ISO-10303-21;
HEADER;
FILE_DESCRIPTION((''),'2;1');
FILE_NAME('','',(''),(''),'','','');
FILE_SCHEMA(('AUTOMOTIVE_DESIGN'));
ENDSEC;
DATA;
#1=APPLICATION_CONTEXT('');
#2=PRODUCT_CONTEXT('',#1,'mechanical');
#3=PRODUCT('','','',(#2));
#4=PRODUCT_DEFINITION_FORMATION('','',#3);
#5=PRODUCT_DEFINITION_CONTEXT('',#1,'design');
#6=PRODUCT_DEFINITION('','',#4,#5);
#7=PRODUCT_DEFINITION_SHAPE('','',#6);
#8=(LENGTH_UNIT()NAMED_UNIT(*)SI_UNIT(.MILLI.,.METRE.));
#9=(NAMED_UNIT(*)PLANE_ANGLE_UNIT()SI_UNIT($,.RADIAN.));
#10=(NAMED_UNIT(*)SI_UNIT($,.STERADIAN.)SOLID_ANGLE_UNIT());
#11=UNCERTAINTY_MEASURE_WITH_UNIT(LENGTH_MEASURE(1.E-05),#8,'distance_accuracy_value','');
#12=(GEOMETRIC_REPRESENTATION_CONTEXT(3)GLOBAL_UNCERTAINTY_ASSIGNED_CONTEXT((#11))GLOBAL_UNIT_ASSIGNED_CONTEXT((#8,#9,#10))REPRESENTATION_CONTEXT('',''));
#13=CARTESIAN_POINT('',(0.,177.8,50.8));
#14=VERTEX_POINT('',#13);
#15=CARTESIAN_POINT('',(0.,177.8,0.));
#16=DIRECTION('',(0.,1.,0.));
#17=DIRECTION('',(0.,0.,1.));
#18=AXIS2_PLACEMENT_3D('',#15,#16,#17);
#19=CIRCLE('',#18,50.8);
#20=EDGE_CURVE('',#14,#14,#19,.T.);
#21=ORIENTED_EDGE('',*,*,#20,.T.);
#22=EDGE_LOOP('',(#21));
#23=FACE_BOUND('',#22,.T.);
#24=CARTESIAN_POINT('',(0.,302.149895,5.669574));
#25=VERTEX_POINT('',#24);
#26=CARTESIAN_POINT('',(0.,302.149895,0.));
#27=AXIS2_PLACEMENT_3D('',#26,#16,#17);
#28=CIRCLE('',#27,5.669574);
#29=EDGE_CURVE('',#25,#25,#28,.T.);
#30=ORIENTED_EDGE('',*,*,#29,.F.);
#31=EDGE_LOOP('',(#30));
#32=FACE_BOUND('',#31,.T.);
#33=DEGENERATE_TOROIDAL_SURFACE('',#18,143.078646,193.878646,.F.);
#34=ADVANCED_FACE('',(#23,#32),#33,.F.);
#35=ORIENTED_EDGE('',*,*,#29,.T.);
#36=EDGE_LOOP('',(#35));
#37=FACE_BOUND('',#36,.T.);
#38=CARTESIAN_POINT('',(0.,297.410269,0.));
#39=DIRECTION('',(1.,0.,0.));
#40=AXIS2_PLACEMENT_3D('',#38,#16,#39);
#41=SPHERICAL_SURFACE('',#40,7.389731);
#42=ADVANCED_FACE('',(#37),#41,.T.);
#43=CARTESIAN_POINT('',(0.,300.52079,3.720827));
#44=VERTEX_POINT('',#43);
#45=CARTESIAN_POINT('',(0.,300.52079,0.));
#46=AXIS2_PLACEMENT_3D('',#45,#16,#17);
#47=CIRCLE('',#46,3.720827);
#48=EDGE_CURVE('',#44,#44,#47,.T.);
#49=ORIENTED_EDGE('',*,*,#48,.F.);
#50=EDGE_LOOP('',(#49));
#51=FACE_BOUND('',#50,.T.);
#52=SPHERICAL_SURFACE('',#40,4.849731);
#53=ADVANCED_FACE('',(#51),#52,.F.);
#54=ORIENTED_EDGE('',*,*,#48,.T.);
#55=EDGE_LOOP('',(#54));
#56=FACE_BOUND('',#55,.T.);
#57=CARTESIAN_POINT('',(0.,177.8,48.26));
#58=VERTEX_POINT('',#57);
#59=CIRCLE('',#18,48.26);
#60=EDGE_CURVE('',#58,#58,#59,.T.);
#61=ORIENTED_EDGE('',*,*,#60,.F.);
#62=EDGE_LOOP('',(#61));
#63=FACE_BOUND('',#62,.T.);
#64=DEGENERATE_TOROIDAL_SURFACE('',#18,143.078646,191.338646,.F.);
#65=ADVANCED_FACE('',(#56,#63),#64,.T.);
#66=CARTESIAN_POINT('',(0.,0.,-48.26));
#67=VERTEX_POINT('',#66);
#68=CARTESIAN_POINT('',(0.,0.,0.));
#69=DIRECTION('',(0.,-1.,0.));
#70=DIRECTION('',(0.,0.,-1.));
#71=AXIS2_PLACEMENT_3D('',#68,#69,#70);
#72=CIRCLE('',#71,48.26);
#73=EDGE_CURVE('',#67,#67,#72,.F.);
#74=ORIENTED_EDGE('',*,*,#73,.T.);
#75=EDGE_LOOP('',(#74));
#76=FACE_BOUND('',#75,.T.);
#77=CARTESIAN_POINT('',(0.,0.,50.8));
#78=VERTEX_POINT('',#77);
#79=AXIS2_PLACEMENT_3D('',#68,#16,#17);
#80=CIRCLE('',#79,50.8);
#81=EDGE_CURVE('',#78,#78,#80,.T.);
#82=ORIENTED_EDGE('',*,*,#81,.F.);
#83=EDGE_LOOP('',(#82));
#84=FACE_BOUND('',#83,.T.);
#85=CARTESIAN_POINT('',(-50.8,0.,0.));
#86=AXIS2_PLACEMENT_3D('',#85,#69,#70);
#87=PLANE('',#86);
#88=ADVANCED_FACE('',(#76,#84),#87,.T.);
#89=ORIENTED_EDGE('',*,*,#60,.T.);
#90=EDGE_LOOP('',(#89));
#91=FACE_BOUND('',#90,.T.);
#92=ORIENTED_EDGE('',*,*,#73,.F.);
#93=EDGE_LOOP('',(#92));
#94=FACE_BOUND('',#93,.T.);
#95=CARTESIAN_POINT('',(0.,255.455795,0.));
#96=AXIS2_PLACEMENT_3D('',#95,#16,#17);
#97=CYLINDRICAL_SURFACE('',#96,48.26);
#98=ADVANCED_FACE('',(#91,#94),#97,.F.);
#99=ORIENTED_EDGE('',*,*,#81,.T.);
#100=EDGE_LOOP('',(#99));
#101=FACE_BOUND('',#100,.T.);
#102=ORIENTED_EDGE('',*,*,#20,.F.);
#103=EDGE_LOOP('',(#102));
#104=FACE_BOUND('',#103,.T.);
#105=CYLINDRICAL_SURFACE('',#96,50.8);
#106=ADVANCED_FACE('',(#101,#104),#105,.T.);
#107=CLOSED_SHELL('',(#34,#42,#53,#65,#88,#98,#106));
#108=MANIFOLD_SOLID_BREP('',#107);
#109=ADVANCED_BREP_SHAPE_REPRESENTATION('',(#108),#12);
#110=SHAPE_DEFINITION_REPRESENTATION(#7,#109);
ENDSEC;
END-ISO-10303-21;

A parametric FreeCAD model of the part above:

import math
import FreeCAD as App
import Part
import Sketcher
Q = App.Units.Quantity


def faces_at(feature, points):
    """Names of the faces that lie closest to the given points."""
    faces = feature.Shape.Faces
    near = lambda p: min(range(len(faces)), key=lambda i: faces[i].distToShape(Part.Vertex(*p))[0])
    return sorted({f"Face{near(p) + 1}" for p in points})

doc = App.newDocument("Part")
params = doc.addObject("Spreadsheet::Sheet", "Params")
for row, (alias, value) in enumerate([
    ("sketch1_width", "2 in"),
    ("sketch1_height", "7 in"),
    ("sketch1_height2", "12 in"),
    ("revolution_angle", "360 deg"),
    ("thickness_wall", "0.1 in"),
], start=1):
    params.set(f"A{row}", alias)
    params.set(f"B{row}", "=" + value)
    params.setAlias(f"B{row}", alias)

body = doc.addObject("PartDesign::Body", "Body")

# Sketch on XY plane
sketch1 = body.newObject("Sketcher::SketchObject", "Sketch")
sketch1.AttachmentSupport = (doc.getObject("XY_Plane"), [""])
sketch1.MapMode = "FlatFace"
sketch1.addGeometry([
    Part.LineSegment(App.Vector(-51, 178, 0), App.Vector(-51, 0, 0)),  # 0
    Part.LineSegment(App.Vector(-51, 0, 0), App.Vector(0, 0, 0)),  # 1
    Part.LineSegment(App.Vector(0, 0, 0), App.Vector(0, 305, 0)),  # 2
    Part.ArcOfCircle(Part.Circle(App.Vector(0, 297, 0), App.Vector(0, 0, 1), 7), math.radians(90), math.radians(140)),  # 3
    Part.ArcOfCircle(Part.Circle(App.Vector(143, 178, 0), App.Vector(0, 0, 1), 194), math.radians(140), math.radians(180)),  # 4
], False)
sketch1.addConstraint([
    Sketcher.Constraint("Coincident", 0, 2, 1, 1),
    Sketcher.Constraint("Coincident", 1, 2, 2, 1),
    Sketcher.Constraint("Coincident", 2, 2, 3, 1),
    Sketcher.Constraint("Tangent", 3, 2, 4, 1),
    Sketcher.Constraint("Tangent", 4, 2, 0, 1),
    Sketcher.Constraint("Vertical", 0),
    Sketcher.Constraint("Horizontal", 1),
    Sketcher.Constraint("Vertical", 2),
    Sketcher.Constraint("Coincident", 1, 2, -1, 1),
    Sketcher.Constraint("PointOnObject", 3, 3, -2),
    Sketcher.Constraint("DistanceX", 1, 1, 1, 2, Q("2 in")),
    Sketcher.Constraint("DistanceY", 0, 2, 0, 1, Q("7 in")),
    Sketcher.Constraint("DistanceY", 2, 1, 2, 2, Q("12 in")),
    Sketcher.Constraint("Radius", 3, 7.389731),
])
sketch1.setExpression("Constraints[10]", "Params.sketch1_width")
sketch1.setExpression("Constraints[11]", "Params.sketch1_height")
sketch1.setExpression("Constraints[12]", "Params.sketch1_height2")
revolution = body.newObject("PartDesign::Revolution", "Revolution")
revolution.Profile = sketch1
revolution.ReferenceAxis = (sketch1, ["V_Axis"])
revolution.setExpression("Angle", "Params.revolution_angle")
doc.recompute()

thickness = body.newObject("PartDesign::Thickness", "Thickness")
thickness.Base = (revolution, faces_at(revolution, [(0, 0, 0)]))
thickness.setExpression("Value", "Params.thickness_wall")
thickness.Reversed = True
thickness.Join = "Intersection"

doc.recompute()
